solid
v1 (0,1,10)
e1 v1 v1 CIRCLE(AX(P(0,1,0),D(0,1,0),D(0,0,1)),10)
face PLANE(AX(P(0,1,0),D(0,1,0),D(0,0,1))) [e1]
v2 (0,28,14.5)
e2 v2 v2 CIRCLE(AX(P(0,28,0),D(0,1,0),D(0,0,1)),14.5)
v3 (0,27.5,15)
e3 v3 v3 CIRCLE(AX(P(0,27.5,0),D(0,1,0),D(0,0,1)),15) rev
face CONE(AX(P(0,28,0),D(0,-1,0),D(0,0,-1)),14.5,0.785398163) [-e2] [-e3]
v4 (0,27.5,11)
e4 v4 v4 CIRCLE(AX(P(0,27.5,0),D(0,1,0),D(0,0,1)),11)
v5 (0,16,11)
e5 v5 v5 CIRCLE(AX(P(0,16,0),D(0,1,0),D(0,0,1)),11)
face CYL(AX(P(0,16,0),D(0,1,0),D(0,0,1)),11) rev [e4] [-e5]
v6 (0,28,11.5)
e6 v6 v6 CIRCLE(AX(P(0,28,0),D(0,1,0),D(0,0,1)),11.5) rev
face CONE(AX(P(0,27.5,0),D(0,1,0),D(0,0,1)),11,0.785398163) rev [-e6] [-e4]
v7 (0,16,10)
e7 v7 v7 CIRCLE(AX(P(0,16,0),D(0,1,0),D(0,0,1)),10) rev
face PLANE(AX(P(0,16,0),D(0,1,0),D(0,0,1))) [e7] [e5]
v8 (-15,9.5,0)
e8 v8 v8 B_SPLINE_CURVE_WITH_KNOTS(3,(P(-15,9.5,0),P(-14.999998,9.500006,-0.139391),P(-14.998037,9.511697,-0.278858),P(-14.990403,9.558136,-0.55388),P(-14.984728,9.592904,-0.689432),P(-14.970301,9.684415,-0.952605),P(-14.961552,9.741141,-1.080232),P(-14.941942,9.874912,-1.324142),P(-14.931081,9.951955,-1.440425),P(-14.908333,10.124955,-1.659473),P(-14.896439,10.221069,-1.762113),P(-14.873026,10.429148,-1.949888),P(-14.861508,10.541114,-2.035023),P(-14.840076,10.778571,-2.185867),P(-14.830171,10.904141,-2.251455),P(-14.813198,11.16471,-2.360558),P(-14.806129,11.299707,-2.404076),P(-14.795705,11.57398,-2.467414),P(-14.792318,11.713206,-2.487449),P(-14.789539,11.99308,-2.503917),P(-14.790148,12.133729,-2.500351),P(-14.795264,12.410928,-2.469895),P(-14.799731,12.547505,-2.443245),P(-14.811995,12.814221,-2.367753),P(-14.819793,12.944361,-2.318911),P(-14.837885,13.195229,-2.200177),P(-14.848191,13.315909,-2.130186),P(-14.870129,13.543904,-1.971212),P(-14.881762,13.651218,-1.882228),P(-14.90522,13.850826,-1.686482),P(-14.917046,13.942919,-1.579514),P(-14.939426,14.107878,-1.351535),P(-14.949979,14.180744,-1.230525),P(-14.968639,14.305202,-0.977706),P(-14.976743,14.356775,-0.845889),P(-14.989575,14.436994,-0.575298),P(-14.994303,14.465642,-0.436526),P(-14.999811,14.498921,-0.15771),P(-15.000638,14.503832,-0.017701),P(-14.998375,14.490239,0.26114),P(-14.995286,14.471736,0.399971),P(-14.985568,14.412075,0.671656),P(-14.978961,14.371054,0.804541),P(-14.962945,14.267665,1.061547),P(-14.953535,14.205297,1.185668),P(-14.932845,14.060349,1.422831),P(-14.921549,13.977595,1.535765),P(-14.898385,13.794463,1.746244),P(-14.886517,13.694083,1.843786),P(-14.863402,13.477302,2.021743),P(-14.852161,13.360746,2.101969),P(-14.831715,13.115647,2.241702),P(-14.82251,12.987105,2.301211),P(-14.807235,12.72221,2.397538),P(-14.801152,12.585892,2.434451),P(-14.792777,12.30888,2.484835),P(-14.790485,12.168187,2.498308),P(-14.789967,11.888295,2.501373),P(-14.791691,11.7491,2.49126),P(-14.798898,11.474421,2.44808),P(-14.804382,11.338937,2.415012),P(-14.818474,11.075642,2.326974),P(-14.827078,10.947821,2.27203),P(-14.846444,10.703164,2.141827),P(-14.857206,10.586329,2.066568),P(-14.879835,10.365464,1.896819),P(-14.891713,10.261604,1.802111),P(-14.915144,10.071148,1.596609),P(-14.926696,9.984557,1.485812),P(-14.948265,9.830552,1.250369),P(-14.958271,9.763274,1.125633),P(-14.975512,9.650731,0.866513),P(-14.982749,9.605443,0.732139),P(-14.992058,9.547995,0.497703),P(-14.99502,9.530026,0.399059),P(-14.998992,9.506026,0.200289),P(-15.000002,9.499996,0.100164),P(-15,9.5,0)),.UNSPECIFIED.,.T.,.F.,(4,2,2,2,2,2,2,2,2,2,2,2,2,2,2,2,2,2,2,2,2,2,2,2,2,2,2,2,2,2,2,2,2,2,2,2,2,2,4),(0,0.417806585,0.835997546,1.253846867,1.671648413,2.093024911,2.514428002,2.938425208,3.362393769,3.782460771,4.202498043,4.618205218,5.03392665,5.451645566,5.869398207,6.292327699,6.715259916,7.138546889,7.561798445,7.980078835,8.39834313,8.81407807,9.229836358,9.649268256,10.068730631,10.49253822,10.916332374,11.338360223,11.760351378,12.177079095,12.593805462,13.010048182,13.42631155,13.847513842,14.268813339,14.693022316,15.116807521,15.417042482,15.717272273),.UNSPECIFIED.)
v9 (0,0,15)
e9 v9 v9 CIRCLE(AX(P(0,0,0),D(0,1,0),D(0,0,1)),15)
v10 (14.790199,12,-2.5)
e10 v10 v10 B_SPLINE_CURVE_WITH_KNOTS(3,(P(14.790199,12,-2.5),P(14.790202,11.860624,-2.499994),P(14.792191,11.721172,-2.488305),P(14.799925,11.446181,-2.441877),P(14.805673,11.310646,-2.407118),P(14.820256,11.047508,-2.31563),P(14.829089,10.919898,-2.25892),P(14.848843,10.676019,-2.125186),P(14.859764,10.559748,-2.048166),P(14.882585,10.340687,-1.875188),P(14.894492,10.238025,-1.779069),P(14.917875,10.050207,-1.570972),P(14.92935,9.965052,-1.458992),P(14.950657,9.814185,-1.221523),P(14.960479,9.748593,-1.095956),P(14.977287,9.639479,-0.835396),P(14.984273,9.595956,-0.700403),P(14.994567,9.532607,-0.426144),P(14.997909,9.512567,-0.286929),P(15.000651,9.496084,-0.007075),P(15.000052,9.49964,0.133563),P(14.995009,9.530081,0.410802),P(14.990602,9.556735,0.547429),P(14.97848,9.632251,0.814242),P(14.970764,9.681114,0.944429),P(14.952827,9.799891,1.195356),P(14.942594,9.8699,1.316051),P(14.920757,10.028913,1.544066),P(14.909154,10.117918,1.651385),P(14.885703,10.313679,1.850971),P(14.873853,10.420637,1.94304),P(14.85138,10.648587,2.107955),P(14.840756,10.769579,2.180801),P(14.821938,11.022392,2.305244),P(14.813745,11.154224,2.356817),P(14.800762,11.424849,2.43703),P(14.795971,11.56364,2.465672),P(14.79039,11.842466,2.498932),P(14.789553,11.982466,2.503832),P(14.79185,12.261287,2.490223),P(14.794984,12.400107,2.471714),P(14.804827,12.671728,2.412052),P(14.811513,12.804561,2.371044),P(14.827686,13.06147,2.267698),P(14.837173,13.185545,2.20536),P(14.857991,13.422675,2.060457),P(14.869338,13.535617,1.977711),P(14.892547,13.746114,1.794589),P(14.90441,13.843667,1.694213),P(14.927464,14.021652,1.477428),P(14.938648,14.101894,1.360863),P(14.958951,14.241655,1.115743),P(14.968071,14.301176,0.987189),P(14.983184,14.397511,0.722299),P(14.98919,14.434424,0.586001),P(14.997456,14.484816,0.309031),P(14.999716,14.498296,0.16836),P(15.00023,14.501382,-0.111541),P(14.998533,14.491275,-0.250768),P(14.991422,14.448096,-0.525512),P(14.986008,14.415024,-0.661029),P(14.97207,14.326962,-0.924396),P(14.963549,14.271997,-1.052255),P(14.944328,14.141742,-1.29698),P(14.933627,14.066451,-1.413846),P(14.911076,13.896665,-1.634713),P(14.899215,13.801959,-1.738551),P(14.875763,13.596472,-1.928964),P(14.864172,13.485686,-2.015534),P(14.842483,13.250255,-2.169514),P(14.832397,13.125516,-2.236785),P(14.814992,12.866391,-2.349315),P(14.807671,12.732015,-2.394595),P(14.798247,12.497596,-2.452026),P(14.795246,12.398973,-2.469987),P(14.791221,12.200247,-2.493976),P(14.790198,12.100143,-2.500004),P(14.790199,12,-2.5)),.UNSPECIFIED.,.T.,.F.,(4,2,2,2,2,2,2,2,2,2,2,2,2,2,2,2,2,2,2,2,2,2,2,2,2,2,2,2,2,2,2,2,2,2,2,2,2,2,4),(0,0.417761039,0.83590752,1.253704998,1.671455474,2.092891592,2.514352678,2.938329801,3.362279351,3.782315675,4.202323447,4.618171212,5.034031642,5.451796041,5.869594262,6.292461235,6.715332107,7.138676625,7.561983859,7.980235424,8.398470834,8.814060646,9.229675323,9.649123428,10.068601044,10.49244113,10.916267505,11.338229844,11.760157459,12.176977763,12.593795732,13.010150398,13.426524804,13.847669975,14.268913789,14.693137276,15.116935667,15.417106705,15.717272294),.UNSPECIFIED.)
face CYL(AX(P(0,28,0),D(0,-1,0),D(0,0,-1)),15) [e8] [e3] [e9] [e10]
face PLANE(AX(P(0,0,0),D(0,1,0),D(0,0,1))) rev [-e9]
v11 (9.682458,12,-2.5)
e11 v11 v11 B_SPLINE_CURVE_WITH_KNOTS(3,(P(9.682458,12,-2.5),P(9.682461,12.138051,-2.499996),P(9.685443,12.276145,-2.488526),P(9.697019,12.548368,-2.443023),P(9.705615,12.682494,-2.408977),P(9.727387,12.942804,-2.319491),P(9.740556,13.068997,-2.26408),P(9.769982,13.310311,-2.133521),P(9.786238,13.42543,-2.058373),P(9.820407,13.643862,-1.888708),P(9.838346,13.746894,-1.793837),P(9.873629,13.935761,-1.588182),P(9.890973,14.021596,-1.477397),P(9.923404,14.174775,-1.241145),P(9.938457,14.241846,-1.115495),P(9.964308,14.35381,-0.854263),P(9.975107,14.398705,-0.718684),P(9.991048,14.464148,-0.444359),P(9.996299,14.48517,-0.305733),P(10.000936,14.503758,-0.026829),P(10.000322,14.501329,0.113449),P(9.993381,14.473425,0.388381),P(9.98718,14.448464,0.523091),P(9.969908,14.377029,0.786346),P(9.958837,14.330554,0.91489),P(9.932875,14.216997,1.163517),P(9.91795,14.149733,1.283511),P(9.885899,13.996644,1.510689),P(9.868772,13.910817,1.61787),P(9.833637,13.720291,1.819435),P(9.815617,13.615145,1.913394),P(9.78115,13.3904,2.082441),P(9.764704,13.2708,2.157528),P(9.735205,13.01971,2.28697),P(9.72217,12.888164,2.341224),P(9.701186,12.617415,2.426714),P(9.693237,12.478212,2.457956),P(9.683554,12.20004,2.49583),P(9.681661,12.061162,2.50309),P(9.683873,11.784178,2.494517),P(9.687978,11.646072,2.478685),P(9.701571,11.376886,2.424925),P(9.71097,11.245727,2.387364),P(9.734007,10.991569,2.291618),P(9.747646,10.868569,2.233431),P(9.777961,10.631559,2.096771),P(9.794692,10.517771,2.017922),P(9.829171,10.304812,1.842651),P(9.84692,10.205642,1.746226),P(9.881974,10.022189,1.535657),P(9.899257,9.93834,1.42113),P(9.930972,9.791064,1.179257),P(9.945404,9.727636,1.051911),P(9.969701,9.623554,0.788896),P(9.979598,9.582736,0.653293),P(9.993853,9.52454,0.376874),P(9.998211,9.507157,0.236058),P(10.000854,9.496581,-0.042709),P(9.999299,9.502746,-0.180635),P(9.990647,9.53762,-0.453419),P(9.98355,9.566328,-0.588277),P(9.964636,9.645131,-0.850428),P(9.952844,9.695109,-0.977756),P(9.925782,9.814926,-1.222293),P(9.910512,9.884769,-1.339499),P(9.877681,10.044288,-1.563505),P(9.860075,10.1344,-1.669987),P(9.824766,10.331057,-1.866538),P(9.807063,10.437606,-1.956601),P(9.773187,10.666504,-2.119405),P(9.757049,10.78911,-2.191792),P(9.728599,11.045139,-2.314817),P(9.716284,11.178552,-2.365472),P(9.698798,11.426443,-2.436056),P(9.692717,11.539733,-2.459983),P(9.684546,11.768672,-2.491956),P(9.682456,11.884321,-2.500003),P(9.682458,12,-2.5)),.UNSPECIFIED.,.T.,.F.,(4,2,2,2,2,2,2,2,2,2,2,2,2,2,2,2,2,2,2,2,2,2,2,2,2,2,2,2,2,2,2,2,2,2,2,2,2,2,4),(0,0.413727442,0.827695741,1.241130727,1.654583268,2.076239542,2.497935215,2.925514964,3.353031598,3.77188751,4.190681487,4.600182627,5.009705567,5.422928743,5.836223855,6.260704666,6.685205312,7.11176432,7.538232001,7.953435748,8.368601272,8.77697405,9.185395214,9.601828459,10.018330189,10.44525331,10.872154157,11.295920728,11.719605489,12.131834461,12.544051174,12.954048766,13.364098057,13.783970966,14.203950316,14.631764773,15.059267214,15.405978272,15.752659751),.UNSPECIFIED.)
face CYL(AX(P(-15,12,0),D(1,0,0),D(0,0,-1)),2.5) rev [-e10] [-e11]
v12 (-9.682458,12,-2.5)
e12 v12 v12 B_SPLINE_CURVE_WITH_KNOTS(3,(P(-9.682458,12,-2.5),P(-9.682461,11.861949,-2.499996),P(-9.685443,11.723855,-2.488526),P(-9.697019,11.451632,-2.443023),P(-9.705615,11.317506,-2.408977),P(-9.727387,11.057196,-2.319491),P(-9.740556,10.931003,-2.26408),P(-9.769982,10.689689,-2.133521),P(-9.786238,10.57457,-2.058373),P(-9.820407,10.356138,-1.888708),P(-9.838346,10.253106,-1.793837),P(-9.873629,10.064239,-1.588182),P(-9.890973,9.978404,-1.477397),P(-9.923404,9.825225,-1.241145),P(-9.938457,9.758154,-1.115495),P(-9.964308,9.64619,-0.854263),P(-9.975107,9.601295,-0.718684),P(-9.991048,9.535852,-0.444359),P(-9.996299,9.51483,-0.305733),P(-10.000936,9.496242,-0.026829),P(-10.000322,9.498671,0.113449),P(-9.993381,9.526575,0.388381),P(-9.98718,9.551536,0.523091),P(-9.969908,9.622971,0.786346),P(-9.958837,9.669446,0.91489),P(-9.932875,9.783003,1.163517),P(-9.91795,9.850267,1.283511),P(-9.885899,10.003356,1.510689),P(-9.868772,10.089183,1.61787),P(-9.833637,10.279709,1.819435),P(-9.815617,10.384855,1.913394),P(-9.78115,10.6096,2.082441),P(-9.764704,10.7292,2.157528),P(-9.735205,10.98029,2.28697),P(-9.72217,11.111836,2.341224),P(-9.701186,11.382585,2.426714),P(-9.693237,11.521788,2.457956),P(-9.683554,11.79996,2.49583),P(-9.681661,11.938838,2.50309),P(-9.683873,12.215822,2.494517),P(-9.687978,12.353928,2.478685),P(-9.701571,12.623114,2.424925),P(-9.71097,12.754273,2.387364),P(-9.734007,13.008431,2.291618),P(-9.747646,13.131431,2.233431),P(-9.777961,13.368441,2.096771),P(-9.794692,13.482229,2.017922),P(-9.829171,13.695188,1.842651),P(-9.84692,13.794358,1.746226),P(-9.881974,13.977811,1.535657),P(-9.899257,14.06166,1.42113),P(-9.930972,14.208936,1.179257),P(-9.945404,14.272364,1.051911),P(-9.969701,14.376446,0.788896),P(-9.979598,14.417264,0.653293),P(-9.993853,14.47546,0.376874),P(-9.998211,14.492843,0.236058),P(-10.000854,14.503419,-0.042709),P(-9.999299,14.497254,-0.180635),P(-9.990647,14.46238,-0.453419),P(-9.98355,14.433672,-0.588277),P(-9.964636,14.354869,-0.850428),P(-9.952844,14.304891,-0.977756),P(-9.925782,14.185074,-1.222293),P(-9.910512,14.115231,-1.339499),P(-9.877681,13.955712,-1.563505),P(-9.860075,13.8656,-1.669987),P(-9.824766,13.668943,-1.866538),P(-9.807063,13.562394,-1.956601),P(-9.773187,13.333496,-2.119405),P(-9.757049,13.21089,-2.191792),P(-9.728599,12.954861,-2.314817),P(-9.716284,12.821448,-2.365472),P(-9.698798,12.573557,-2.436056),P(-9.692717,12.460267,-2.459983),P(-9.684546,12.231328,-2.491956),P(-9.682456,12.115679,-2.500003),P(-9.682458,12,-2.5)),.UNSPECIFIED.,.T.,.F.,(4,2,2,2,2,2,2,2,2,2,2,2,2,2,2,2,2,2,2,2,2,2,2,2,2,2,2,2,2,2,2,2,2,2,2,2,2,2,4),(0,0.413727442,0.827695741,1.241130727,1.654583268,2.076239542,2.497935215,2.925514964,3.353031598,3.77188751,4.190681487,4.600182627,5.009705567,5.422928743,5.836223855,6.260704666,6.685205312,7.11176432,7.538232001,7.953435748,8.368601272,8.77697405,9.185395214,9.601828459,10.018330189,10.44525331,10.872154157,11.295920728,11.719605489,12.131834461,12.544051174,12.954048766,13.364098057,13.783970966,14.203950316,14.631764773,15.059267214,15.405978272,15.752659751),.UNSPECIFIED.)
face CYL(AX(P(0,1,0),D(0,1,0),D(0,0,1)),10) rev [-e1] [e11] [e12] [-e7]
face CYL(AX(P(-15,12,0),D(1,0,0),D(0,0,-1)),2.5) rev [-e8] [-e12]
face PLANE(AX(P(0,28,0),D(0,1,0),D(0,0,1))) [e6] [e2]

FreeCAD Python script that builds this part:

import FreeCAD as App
import Part
import Sketcher


def edges_at(feature, points):
    """Names of the edges that pass closest to the given points."""
    edges = feature.Shape.Edges
    near = lambda p: min(range(len(edges)), key=lambda i: edges[i].distToShape(Part.Vertex(*p))[0])
    return sorted({f"Edge{near(p) + 1}" for p in points})

doc = App.newDocument("Part")
body = doc.addObject("PartDesign::Body", "Body")

# Sketch on XZ plane
sketch1 = body.newObject("Sketcher::SketchObject", "Sketch")
sketch1.AttachmentSupport = (doc.getObject("XZ_Plane"), [""])
sketch1.MapMode = "FlatFace"
sketch1.addGeometry(Part.Circle(App.Vector(0, 0, 0), App.Vector(0, 0, 1), 15), False)
sketch1.addConstraint([
    Sketcher.Constraint("Coincident", 0, 3, -1, 1),
    Sketcher.Constraint("Diameter", 0, 30.0),
])
pad1 = body.newObject("PartDesign::Pad", "Pad")
pad1.Profile = sketch1
pad1.Length = 28
pad1.Reversed = True

# Sketch on XZ plane
sketch2 = body.newObject("Sketcher::SketchObject", "Sketch001")
sketch2.AttachmentSupport = (doc.getObject("XZ_Plane"), [""])
sketch2.MapMode = "FlatFace"
sketch2.AttachmentOffset = App.Placement(App.Vector(0, 0, -28), App.Rotation())
sketch2.addGeometry(Part.Circle(App.Vector(0, 0, 0), App.Vector(0, 0, 1), 10), False)
sketch2.addConstraint([
    Sketcher.Constraint("Coincident", 0, 3, -1, 1),
    Sketcher.Constraint("Diameter", 0, 20.0),
])
pocket1 = body.newObject("PartDesign::Pocket", "Pocket")
pocket1.Profile = sketch2
pocket1.Length = 27
pocket1.Reversed = True

# Sketch on XZ plane
sketch3 = body.newObject("Sketcher::SketchObject", "Sketch002")
sketch3.AttachmentSupport = (doc.getObject("XZ_Plane"), [""])
sketch3.MapMode = "FlatFace"
sketch3.AttachmentOffset = App.Placement(App.Vector(0, 0, -28), App.Rotation())
sketch3.addGeometry(Part.Circle(App.Vector(0, 0, 0), App.Vector(0, 0, 1), 11), False)
sketch3.addConstraint([
    Sketcher.Constraint("Coincident", 0, 3, -1, 1),
    Sketcher.Constraint("Diameter", 0, 22.0),
])
pocket2 = body.newObject("PartDesign::Pocket", "Pocket001")
pocket2.Profile = sketch3
pocket2.Length = 12
pocket2.Reversed = True

# Sketch on YZ plane
sketch4 = body.newObject("Sketcher::SketchObject", "Sketch003")
sketch4.AttachmentSupport = (doc.getObject("YZ_Plane"), [""])
sketch4.MapMode = "FlatFace"
sketch4.addGeometry(Part.Circle(App.Vector(12, 0, 0), App.Vector(0, 0, 1), 2.5), False)
sketch4.addConstraint([
    Sketcher.Constraint("PointOnObject", 0, 3, -1),
    Sketcher.Constraint("Diameter", 0, 5.0),
    Sketcher.Constraint("DistanceX", -1, 1, 0, 3, 12.0),
])
pocket3 = body.newObject("PartDesign::Pocket", "Pocket002")
pocket3.Profile = sketch4
pocket3.Type = "ThroughAll"
pocket3.Midplane = True
doc.recompute()

chamfer = body.newObject("PartDesign::Chamfer", "Chamfer")
chamfer.Base = (pocket3, edges_at(pocket3, [(0, 28, -11), (0, 28, -15)]))
chamfer.Size = 0.5

doc.recompute()
